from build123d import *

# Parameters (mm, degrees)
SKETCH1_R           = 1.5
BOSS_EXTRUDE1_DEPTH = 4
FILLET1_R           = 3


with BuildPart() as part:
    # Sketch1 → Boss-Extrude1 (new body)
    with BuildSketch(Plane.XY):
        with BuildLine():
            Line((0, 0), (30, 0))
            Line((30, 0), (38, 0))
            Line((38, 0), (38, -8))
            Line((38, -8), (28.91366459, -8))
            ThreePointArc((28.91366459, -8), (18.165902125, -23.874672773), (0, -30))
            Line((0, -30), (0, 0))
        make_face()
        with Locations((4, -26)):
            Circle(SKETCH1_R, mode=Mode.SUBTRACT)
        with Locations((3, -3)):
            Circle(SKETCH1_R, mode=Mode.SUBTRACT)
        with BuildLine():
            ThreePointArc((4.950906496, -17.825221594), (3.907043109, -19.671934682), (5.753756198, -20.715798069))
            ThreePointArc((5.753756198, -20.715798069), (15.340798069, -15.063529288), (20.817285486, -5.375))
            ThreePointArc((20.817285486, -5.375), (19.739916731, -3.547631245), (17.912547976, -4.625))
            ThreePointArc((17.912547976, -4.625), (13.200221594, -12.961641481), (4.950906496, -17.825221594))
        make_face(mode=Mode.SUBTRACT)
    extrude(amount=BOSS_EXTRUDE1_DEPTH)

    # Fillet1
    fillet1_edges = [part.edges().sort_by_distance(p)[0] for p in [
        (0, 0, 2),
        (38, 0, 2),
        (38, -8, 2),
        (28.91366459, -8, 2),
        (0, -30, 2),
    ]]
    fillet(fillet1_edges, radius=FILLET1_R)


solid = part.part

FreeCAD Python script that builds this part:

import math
import FreeCAD as App
import Part
import Sketcher


def edges_at(feature, points):
    """Names of the edges that pass closest to the given points."""
    edges = feature.Shape.Edges
    near = lambda p: min(range(len(edges)), key=lambda i: edges[i].distToShape(Part.Vertex(*p))[0])
    return sorted({f"Edge{near(p) + 1}" for p in points})

doc = App.newDocument("Part")
body = doc.addObject("PartDesign::Body", "Body")

# Sketch on XY plane
sketch1 = body.newObject("Sketcher::SketchObject", "Sketch")
sketch1.AttachmentSupport = (doc.getObject("XY_Plane"), [""])
sketch1.MapMode = "FlatFace"
sketch1.addGeometry([
    Part.LineSegment(App.Vector(38, 0, 0), App.Vector(0, 0, 0)),  # 0
    Part.LineSegment(App.Vector(0, 0, 0), App.Vector(0, -30, 0)),  # 1
    Part.ArcOfCircle(Part.Circle(App.Vector(0, 0, 0), App.Vector(0, 0, 1), 30), math.radians(-90), math.radians(-15)),  # 2
    Part.LineSegment(App.Vector(28.9, -8, 0), App.Vector(38, -8, 0)),  # 3
    Part.LineSegment(App.Vector(38, -8, 0), App.Vector(38, 0, 0)),  # 4
    Part.Circle(App.Vector(4, -26, 0), App.Vector(0, 0, 1), 1.5),  # 5
    Part.ArcOfCircle(Part.Circle(App.Vector(0, 0, 0), App.Vector(0, 0, 1), 18.5), math.radians(-74), math.radians(-14)),  # 6
    Part.ArcOfCircle(Part.Circle(App.Vector(19.4, -5, 0), App.Vector(0, 0, 1), 1.5), math.radians(-14), math.radians(166)),  # 7
    Part.ArcOfCircle(Part.Circle(App.Vector(0, 0, 0), App.Vector(0, 0, 1), 21.5), math.radians(-74), math.radians(-14)),  # 8
    Part.ArcOfCircle(Part.Circle(App.Vector(5.4, -19.3, 0), App.Vector(0, 0, 1), 1.5), math.radians(106), math.radians(286)),  # 9
    Part.Circle(App.Vector(3, -3, 0), App.Vector(0, 0, 1), 1.5),  # 10
], False)
sketch1.addConstraint([
    Sketcher.Constraint("Coincident", 0, 2, 1, 1),
    Sketcher.Constraint("Coincident", 1, 2, 2, 1),
    Sketcher.Constraint("Coincident", 2, 2, 3, 1),
    Sketcher.Constraint("Coincident", 3, 2, 4, 1),
    Sketcher.Constraint("Coincident", 4, 2, 0, 1),
    Sketcher.Constraint("Tangent", 6, 2, 7, 2),
    Sketcher.Constraint("Tangent", 7, 1, 8, 2),
    Sketcher.Constraint("Tangent", 8, 1, 9, 2),
    Sketcher.Constraint("Tangent", 9, 1, 6, 1),
    Sketcher.Constraint("Horizontal", 0),
    Sketcher.Constraint("Vertical", 1),
    Sketcher.Constraint("Horizontal", 3),
    Sketcher.Constraint("Vertical", 4),
    Sketcher.Constraint("Coincident", 2, 3, -1, 1),
    Sketcher.Constraint("Coincident", 6, 3, -1, 1),
    Sketcher.Constraint("Coincident", 8, 3, -1, 1),
    Sketcher.Constraint("Coincident", 0, 2, -1, 1),
    Sketcher.Constraint("Equal", 5, 7),
    Sketcher.Constraint("Equal", 9, 10),
    Sketcher.Constraint("Diameter", 5, 3.0),
    Sketcher.Constraint("Radius", 2, 30.0),
    Sketcher.Constraint("Radius", 6, 18.5),
    Sketcher.Constraint("DistanceX", 0, 2, 0, 1, 38.0),
    Sketcher.Constraint("DistanceY", 4, 1, 4, 2, 8.0),
    Sketcher.Constraint("DistanceX", -1, 1, 5, 3, 4.0),
    Sketcher.Constraint("DistanceY", 5, 3, -1, 1, 26.0),
    Sketcher.Constraint("DistanceY", 7, 3, -1, 1, 5.0),
    Sketcher.Constraint("DistanceX", -1, 1, 10, 3, 3.0),
    Sketcher.Constraint("DistanceY", 10, 3, -1, 1, 3.0),
    Sketcher.Constraint("DistanceY", 8, 1, -1, 1, 20.715798),
])
pad1 = body.newObject("PartDesign::Pad", "Pad")
pad1.Profile = sketch1
pad1.Length = 4
doc.recompute()

fillet = body.newObject("PartDesign::Fillet", "Fillet")
fillet.Base = (pad1, edges_at(pad1, [
    (0, 0, 2),
    (38, 0, 2),
    (38, -8, 2),
    (28.914, -8, 2),
    (0, -30, 2),
]))
fillet.Radius = 3

doc.recompute()
